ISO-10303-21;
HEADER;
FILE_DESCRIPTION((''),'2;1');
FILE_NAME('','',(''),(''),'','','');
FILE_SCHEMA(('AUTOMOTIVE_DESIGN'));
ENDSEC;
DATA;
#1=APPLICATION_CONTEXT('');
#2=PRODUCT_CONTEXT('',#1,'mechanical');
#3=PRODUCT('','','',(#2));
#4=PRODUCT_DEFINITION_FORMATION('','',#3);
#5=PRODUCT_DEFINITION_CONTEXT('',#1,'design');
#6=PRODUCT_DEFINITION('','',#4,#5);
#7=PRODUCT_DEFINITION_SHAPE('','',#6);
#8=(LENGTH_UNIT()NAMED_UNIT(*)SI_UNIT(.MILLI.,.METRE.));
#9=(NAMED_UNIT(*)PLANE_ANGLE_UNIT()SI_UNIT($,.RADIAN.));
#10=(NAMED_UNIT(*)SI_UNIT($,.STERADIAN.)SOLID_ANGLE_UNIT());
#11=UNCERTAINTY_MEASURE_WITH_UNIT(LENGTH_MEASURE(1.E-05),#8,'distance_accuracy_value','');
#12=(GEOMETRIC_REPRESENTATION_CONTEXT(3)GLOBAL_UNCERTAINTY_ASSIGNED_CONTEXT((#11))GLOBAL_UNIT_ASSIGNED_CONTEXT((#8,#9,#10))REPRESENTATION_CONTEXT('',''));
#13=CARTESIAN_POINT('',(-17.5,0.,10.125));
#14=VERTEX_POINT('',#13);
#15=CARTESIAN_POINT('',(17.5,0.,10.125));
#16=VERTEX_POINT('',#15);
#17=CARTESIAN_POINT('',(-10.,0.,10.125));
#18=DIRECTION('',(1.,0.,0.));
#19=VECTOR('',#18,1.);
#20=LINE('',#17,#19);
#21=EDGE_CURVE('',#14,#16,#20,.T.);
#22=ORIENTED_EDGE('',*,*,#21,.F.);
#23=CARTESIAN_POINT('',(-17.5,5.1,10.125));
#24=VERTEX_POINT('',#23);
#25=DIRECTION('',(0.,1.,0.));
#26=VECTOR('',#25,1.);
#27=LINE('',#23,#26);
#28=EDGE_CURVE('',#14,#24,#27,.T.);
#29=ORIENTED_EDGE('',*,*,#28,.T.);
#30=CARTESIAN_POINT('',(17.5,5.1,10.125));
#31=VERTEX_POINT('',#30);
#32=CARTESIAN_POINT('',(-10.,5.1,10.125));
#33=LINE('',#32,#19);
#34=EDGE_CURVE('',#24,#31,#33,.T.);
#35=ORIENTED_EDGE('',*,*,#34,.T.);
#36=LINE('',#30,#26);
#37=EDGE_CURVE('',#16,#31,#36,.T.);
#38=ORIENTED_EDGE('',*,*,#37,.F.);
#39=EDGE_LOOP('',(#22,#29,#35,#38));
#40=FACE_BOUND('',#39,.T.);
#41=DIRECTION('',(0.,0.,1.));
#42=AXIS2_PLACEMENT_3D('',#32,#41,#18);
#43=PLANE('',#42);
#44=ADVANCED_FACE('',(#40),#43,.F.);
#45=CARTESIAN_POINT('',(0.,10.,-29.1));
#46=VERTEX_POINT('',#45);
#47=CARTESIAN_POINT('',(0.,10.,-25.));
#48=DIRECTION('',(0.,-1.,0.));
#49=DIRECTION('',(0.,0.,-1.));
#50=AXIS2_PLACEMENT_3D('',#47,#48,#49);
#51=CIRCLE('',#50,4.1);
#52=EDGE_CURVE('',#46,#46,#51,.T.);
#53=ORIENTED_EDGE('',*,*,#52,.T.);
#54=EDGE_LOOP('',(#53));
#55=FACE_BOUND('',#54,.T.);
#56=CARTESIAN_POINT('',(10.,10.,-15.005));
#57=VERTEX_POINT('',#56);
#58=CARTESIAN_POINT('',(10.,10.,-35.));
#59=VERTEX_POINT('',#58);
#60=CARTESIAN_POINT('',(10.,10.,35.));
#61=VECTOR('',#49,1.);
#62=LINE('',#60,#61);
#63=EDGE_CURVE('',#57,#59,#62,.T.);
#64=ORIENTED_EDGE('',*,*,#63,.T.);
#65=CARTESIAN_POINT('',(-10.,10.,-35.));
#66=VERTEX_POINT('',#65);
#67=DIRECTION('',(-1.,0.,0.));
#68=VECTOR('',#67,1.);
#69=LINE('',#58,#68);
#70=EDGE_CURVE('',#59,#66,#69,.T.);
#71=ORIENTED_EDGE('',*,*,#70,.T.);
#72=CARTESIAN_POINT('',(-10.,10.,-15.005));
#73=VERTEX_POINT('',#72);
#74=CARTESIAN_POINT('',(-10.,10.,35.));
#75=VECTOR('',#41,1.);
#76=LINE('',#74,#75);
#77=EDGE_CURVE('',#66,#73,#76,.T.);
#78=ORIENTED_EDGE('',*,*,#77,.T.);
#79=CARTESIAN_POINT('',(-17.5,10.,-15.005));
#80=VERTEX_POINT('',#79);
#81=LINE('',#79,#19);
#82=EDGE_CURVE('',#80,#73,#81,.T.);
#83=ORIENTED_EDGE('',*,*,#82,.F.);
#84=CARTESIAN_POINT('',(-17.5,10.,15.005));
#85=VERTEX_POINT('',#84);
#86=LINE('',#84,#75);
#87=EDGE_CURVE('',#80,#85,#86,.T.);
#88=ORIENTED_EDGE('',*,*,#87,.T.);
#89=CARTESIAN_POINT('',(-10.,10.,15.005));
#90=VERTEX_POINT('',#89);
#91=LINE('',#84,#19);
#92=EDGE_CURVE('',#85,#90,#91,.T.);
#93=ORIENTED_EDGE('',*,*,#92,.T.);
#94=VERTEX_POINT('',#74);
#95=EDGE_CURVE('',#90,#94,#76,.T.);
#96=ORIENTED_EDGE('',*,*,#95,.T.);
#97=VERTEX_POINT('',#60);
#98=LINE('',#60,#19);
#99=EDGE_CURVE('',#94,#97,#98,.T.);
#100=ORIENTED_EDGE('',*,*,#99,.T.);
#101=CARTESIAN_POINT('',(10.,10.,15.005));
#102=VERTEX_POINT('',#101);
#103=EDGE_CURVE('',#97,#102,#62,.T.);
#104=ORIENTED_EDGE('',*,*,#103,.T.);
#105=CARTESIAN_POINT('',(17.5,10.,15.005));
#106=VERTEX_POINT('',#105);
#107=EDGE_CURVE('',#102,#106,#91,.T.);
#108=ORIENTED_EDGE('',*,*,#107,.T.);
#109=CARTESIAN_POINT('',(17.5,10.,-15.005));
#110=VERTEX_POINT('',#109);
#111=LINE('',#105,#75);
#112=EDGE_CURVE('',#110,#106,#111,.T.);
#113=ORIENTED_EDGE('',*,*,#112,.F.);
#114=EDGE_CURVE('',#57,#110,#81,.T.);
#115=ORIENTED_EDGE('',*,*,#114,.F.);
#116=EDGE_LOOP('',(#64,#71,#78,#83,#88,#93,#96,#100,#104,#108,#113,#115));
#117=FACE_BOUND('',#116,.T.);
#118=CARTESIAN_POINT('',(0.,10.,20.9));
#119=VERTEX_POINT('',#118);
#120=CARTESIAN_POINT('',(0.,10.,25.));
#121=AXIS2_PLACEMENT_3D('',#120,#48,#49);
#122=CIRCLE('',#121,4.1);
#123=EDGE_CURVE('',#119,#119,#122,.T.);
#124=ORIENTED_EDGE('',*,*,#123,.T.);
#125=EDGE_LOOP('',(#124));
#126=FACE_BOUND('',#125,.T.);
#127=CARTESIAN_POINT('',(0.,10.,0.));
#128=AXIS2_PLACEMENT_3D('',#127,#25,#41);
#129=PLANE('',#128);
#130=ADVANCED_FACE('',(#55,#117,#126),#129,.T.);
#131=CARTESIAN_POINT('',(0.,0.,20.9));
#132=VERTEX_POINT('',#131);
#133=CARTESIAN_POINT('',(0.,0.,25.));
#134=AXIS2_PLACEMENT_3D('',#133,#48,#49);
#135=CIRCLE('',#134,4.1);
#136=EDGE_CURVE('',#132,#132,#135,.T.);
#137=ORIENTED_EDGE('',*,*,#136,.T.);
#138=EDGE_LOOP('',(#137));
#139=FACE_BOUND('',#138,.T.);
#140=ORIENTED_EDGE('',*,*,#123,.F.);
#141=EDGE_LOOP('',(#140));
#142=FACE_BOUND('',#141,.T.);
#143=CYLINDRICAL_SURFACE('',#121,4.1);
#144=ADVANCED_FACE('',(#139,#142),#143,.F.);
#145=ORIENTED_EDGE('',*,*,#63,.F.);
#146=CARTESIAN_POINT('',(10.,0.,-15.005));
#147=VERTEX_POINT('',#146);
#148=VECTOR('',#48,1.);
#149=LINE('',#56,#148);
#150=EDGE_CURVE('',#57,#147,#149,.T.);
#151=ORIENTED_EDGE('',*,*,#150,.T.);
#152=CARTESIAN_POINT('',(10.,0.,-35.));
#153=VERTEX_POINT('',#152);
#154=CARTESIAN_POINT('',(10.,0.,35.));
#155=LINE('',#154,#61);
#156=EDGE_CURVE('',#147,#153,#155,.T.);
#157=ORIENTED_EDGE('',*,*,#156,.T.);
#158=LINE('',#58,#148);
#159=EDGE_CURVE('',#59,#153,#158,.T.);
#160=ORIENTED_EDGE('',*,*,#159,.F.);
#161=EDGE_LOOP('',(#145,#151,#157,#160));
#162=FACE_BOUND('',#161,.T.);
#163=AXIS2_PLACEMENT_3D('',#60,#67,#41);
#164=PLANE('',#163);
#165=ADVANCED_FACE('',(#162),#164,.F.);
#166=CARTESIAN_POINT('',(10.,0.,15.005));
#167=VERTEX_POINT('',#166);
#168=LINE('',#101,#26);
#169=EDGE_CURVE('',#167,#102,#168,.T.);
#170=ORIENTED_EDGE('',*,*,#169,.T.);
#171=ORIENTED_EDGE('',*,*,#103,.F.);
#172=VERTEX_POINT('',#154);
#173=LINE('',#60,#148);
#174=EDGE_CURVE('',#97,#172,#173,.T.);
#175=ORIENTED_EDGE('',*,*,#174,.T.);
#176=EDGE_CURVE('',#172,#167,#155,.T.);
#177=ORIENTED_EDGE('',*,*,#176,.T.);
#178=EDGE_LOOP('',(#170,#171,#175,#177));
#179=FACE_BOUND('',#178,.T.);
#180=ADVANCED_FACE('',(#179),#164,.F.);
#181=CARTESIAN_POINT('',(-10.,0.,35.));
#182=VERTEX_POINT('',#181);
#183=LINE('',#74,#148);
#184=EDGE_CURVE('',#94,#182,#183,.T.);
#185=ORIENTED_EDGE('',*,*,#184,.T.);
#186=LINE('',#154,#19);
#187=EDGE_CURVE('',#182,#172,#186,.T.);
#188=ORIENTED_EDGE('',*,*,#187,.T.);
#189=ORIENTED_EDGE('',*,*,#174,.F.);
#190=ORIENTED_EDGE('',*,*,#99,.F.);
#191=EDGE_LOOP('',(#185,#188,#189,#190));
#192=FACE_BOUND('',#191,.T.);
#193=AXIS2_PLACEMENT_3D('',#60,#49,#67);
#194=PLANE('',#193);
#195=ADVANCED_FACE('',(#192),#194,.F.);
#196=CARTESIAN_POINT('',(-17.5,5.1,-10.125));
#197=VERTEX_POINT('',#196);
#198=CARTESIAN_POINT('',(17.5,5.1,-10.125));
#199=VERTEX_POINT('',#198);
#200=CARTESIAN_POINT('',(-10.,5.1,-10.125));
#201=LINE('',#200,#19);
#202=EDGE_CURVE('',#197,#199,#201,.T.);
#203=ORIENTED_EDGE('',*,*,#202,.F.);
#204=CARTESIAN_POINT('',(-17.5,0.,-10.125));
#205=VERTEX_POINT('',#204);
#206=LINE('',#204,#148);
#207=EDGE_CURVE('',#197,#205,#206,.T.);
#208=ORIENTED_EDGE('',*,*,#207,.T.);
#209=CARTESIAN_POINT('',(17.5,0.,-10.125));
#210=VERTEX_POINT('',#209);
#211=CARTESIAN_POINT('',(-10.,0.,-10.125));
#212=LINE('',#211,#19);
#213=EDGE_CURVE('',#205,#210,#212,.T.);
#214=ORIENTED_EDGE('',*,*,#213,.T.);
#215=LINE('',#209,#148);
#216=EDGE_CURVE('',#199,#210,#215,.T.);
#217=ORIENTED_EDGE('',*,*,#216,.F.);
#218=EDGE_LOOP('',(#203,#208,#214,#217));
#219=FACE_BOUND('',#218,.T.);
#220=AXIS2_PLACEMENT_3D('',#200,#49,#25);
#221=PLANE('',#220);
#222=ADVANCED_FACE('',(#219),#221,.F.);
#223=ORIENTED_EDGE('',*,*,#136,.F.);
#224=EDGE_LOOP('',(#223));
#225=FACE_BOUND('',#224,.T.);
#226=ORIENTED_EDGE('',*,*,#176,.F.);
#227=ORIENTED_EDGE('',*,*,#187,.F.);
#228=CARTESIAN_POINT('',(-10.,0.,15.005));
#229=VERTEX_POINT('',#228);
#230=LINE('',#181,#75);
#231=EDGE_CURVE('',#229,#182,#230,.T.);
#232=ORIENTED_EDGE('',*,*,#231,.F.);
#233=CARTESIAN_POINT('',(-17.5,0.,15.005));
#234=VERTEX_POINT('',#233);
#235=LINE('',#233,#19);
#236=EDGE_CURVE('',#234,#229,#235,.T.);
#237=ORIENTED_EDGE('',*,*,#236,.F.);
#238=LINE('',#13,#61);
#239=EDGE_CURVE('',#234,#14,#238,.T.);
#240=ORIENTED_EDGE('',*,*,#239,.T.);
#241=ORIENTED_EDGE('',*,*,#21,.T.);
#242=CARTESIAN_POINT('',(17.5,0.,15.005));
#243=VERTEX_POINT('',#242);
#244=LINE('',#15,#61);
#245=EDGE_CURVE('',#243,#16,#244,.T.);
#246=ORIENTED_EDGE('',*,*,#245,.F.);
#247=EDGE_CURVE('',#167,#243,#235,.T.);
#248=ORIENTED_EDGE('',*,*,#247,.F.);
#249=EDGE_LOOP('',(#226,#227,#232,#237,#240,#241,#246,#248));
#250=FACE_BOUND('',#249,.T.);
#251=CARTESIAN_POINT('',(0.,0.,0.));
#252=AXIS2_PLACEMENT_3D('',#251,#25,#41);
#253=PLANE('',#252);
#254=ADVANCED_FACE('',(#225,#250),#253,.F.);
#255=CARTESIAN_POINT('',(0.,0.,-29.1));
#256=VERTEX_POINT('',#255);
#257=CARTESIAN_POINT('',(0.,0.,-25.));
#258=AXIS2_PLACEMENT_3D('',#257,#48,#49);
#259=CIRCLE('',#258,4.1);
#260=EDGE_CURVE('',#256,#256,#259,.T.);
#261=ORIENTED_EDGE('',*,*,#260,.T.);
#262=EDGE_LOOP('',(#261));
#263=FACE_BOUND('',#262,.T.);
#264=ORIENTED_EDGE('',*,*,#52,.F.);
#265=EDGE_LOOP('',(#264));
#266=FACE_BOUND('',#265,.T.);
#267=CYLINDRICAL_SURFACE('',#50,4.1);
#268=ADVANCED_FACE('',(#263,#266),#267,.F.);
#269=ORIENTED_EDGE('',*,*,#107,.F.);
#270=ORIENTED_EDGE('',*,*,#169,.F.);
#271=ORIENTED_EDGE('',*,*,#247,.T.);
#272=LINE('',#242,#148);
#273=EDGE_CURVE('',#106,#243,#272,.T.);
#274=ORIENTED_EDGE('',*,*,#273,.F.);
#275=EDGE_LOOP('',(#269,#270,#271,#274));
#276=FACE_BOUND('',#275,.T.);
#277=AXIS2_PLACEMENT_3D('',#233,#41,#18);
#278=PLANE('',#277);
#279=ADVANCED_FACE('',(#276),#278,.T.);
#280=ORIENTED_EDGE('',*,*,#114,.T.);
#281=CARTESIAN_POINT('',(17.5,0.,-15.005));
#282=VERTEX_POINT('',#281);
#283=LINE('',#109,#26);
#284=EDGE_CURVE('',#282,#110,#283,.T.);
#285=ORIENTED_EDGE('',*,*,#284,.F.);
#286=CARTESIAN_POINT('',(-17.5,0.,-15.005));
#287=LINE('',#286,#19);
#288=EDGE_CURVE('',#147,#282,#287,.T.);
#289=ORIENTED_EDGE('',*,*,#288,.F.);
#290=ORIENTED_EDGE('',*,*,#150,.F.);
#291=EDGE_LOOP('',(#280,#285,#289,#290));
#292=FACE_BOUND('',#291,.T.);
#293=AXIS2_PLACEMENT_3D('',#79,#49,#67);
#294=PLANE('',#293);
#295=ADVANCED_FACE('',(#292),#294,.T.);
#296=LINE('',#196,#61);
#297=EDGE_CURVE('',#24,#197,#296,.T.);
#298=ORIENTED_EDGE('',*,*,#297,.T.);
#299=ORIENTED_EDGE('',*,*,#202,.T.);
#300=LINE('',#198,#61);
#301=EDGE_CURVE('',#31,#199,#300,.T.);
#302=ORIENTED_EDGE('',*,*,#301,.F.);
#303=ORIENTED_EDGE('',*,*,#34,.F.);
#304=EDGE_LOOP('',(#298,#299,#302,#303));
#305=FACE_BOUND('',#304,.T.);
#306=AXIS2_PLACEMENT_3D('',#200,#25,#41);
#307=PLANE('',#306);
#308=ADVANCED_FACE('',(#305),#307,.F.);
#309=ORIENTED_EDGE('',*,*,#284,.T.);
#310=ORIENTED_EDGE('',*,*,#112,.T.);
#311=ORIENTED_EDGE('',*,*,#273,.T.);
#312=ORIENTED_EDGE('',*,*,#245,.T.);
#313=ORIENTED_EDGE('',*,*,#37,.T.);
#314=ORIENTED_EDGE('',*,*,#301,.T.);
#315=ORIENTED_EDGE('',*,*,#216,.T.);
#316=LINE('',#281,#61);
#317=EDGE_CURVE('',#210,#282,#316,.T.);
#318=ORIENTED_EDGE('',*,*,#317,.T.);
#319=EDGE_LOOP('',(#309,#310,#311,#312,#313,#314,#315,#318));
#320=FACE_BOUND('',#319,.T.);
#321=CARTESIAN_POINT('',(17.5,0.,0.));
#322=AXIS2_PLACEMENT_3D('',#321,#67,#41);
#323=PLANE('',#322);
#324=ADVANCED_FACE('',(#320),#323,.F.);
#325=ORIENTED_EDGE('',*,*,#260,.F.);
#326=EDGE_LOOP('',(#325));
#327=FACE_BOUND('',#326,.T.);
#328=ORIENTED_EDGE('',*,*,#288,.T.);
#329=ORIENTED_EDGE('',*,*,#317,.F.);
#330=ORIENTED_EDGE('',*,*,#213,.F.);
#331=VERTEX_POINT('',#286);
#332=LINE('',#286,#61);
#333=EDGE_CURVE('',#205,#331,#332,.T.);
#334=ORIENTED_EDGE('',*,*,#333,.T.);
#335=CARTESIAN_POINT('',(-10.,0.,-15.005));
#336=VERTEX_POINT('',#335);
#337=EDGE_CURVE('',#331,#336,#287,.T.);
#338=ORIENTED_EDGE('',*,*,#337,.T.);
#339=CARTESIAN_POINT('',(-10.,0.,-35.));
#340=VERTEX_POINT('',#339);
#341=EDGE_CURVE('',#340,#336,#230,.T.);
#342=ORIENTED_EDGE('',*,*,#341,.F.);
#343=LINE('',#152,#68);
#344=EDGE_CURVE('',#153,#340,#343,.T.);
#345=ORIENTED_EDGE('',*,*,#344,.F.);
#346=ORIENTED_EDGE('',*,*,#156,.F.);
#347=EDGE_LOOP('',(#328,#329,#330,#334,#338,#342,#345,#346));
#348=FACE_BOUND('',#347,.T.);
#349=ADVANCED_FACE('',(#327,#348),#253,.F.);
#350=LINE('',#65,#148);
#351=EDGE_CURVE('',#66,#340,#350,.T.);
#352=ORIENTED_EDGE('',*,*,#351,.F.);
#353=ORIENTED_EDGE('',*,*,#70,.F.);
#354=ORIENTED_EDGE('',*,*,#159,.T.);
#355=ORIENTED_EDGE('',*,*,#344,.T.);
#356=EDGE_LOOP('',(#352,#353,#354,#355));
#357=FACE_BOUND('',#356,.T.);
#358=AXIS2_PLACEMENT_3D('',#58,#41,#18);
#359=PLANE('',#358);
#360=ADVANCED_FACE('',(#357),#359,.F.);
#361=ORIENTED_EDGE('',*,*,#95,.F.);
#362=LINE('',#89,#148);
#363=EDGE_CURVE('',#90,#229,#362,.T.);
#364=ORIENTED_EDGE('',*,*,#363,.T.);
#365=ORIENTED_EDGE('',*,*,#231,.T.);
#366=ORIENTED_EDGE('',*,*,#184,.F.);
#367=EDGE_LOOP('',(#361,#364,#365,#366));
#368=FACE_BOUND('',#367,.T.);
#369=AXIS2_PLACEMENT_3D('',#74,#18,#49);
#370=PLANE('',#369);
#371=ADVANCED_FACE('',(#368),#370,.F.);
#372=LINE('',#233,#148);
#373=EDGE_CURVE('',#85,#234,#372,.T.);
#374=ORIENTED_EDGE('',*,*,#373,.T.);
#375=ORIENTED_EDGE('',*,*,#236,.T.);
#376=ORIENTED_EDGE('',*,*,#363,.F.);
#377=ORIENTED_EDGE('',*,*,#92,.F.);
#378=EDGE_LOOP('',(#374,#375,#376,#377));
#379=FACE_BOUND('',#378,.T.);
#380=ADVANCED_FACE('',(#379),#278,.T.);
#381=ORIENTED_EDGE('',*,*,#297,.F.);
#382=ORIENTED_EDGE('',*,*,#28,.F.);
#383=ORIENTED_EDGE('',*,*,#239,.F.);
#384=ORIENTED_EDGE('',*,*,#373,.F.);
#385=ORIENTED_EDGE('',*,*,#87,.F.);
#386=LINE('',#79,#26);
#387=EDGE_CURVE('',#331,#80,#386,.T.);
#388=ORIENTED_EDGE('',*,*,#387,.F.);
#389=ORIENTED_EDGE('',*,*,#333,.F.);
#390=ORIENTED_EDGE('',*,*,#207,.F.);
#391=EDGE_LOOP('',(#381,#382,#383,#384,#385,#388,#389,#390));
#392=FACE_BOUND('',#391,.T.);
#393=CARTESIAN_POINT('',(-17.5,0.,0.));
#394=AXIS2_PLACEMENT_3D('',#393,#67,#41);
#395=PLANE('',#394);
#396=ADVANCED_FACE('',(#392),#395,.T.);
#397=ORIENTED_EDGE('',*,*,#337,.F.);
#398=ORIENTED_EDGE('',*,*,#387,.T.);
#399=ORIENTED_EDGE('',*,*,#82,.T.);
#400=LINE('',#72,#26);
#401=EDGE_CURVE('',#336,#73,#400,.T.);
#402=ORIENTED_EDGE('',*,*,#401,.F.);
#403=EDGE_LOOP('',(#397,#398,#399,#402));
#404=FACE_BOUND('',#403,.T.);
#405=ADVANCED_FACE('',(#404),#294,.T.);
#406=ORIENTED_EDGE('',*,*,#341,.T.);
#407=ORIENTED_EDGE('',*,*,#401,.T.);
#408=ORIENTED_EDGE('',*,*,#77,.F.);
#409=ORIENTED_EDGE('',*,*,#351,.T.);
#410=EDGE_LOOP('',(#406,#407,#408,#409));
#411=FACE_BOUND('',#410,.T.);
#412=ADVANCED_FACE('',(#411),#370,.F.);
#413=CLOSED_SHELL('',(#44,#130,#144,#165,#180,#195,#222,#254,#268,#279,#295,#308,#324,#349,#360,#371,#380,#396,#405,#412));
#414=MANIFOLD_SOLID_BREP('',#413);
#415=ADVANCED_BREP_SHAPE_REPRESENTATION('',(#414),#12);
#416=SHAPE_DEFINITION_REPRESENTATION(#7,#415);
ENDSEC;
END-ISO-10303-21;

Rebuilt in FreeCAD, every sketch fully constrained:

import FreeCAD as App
import Part
import Sketcher

V = App.Vector
Q = App.Units.Quantity


def add_polygon(sketch, points):
    """Adds a closed chain of lines whose ends are joined by coincident constraints."""
    first, n = sketch.GeometryCount, len(points)
    for a, b in zip(points, points[1:] + points[:1]):
        sketch.addGeometry(Part.LineSegment(App.Vector(*a, 0), App.Vector(*b, 0)), False)
    for i in range(n):
        sketch.addConstraint(Sketcher.Constraint("Coincident", first + i, 2, first + (i + 1) % n, 1))

doc = App.newDocument("Part")
params = doc.addObject("Spreadsheet::Sheet", "Params")
for row, (alias, value) in enumerate([
    ("sketch1_width", "20 mm"),
    ("sketch1_height", "70 mm"),
    ("pad1_length", "10 mm"),
    ("sketch2_width", "5.1 mm"),
    ("sketch2_height", "20.25 mm"),
    ("sketch3_diameter", "8.2 mm"),
    ("sketch4_width", "10 mm"),
    ("sketch4_width2", "5.1 mm"),
    ("sketch4_height", "4.88 mm"),
    ("sketch4_height2", "20.25 mm"),
    ("pad2_length", "7.5 mm"),
    ("pad2_length2", "27.5 mm"),
], start=1):
    params.set(f"A{row}", alias)
    params.set(f"B{row}", "=" + value)
    params.setAlias(f"B{row}", alias)

body = doc.addObject("PartDesign::Body", "Body")

# Sketch on XZ plane
sketch1 = body.newObject("Sketcher::SketchObject", "Sketch")
sketch1.AttachmentSupport = (doc.getObject("XZ_Plane"), [""])
sketch1.MapMode = "FlatFace"
add_polygon(sketch1, [(-10, -35), (-10, 35), (10, 35), (10, -35)])  # lines 0-3
sketch1.addConstraint([
    Sketcher.Constraint("Vertical", 0),
    Sketcher.Constraint("Horizontal", 1),
    Sketcher.Constraint("Vertical", 2),
    Sketcher.Constraint("Horizontal", 3),
    Sketcher.Constraint("Symmetric", 0, 2, 2, 2, -1, 1),
    Sketcher.Constraint("DistanceX", 1, 1, 1, 2, Q("20 mm")),
    Sketcher.Constraint("DistanceY", 0, 1, 0, 2, Q("70 mm")),
])
sketch1.setExpression("Constraints[9]", "Params.sketch1_width")
sketch1.setExpression("Constraints[10]", "Params.sketch1_height")
pad1 = body.newObject("PartDesign::Pad", "Pad")
pad1.Profile = sketch1
pad1.setExpression("Length", "Params.pad1_length")
pad1.Reversed = True

# Sketch on YZ plane
sketch2 = body.newObject("Sketcher::SketchObject", "Sketch001")
sketch2.AttachmentSupport = (doc.getObject("YZ_Plane"), [""])
sketch2.MapMode = "FlatFace"
sketch2.AttachmentOffset = App.Placement(V(0, 0, 10), App.Rotation())
add_polygon(sketch2, [(5.1, 10.125), (0, 10.125), (0, -10.125), (5.1, -10.125)])  # lines 0-3
sketch2.addConstraint([
    Sketcher.Constraint("Horizontal", 0),
    Sketcher.Constraint("Vertical", 1),
    Sketcher.Constraint("Horizontal", 2),
    Sketcher.Constraint("Vertical", 3),
    Sketcher.Constraint("Symmetric", 0, 2, 1, 2, -1, 1),
    Sketcher.Constraint("DistanceX", 0, 2, 0, 1, Q("5.1 mm")),
    Sketcher.Constraint("DistanceY", 1, 2, 1, 1, Q("20.25 mm")),
])
sketch2.setExpression("Constraints[9]", "Params.sketch2_width")
sketch2.setExpression("Constraints[10]", "Params.sketch2_height")
pocket1 = body.newObject("PartDesign::Pocket", "Pocket")
pocket1.Profile = sketch2
pocket1.Type = "ThroughAll"
pocket1.Midplane = True

# Sketch on XZ plane
sketch3 = body.newObject("Sketcher::SketchObject", "Sketch002")
sketch3.AttachmentSupport = (doc.getObject("XZ_Plane"), [""])
sketch3.MapMode = "FlatFace"
sketch3.addGeometry([
    Part.Circle(V(0, 25, 0), V(0, 0, 1), 4.1),
    Part.Circle(V(0, -25, 0), V(0, 0, 1), 4.1),
], False)
sketch3.addConstraint([
    Sketcher.Constraint("Equal", 0, 1),
    Sketcher.Constraint("Symmetric", 0, 3, 1, 3, -1, 1),
    Sketcher.Constraint("PointOnObject", 0, 3, -2),
    Sketcher.Constraint("Diameter", 0, Q("8.2 mm")),
    Sketcher.Constraint("DistanceY", -1, 1, 0, 3, Q("25 mm")),
])
sketch3.setExpression("Constraints[3]", "Params.sketch3_diameter")
pocket2 = body.newObject("PartDesign::Pocket", "Pocket001")
pocket2.Profile = sketch3
pocket2.Type = "ThroughAll"

# Sketch on YZ plane
sketch4 = body.newObject("Sketcher::SketchObject", "Sketch003")
sketch4.AttachmentSupport = (doc.getObject("YZ_Plane"), [""])
sketch4.MapMode = "FlatFace"
sketch4.AttachmentOffset = App.Placement(V(0, 0, 10), App.Rotation())
add_polygon(sketch4, [(0, 15.005), (0, 10.125), (5.1, 10.125), (5.1, -10.125), (0, -10.125), (0, -15.005), (10, -15.005), (10, 15.005)])  # lines 0-7
sketch4.addConstraint([
    Sketcher.Constraint("Vertical", 0),
    Sketcher.Constraint("Horizontal", 1),
    Sketcher.Constraint("Vertical", 2),
    Sketcher.Constraint("Horizontal", 3),
    Sketcher.Constraint("Vertical", 4),
    Sketcher.Constraint("Horizontal", 5),
    Sketcher.Constraint("Vertical", 6),
    Sketcher.Constraint("Horizontal", 7),
    Sketcher.Constraint("Symmetric", 0, 2, 3, 2, -1, 1),
    Sketcher.Constraint("Symmetric", 4, 2, 7, 2, -1),
    Sketcher.Constraint("DistanceX", 5, 1, 5, 2, Q("10 mm")),
    Sketcher.Constraint("DistanceX", 1, 1, 1, 2, Q("5.1 mm")),
    Sketcher.Constraint("DistanceY", 0, 2, 0, 1, Q("4.88 mm")),
    Sketcher.Constraint("DistanceY", 2, 2, 2, 1, Q("20.25 mm")),
])
sketch4.setExpression("Constraints[18]", "Params.sketch4_width")
sketch4.setExpression("Constraints[19]", "Params.sketch4_width2")
sketch4.setExpression("Constraints[20]", "Params.sketch4_height")
sketch4.setExpression("Constraints[21]", "Params.sketch4_height2")
pad2 = body.newObject("PartDesign::Pad", "Pad001")
pad2.Profile = sketch4
pad2.Type = "TwoLengths"
pad2.setExpression("Length", "Params.pad2_length")
pad2.setExpression("Length2", "Params.pad2_length2")

doc.recompute()
